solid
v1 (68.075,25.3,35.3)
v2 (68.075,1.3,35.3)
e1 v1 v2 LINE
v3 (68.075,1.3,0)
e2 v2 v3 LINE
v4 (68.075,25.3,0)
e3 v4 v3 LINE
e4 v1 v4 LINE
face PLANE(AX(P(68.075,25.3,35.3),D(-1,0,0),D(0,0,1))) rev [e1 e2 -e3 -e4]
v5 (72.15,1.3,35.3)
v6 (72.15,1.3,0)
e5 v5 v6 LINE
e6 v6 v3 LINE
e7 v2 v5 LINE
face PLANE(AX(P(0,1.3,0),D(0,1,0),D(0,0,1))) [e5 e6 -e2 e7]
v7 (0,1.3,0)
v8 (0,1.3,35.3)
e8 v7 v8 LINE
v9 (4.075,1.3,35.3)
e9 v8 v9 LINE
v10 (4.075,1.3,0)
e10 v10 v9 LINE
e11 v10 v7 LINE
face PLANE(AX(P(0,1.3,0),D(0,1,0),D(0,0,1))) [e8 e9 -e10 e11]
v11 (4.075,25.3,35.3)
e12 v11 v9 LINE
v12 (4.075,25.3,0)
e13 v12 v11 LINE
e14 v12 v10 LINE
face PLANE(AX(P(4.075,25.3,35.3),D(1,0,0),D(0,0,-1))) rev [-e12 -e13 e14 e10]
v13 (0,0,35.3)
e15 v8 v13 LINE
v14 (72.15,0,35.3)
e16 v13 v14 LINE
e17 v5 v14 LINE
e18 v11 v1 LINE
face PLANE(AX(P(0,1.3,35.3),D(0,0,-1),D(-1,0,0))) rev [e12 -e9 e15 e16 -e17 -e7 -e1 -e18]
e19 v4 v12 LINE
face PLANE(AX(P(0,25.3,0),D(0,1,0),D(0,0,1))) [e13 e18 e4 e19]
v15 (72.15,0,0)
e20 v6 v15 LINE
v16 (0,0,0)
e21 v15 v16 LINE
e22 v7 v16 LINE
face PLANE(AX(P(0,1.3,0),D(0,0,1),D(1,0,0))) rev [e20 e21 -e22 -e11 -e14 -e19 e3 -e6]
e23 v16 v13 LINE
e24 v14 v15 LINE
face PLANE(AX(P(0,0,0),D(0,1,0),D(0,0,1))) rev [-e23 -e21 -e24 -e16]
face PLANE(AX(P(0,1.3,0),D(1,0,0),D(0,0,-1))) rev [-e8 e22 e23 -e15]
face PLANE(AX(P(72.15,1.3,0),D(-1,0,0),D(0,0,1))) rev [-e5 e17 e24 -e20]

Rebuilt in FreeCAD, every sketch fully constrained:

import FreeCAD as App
import Part
import Sketcher
Q = App.Units.Quantity

doc = App.newDocument("Part")
body = doc.addObject("PartDesign::Body", "Body")

sketch1 = doc.addObject("Sketcher::SketchObject", "Sketch")
body.addObject(sketch1)
sketch1.AttachmentSupport = (doc.XZ_Plane, [""])
sketch1.MapMode = "FlatFace"
sketch1.addGeometry(Part.LineSegment(App.Vector(0, 0, 0), App.Vector(0, 35, 0)), False)
sketch1.addGeometry(Part.LineSegment(App.Vector(0, 35, 0), App.Vector(72, 35, 0)), False)
sketch1.addGeometry(Part.LineSegment(App.Vector(72, 35, 0), App.Vector(72, 0, 0)), False)
sketch1.addGeometry(Part.LineSegment(App.Vector(72, 0, 0), App.Vector(0, 0, 0)), False)
sketch1.addConstraint(Sketcher.Constraint("Coincident", 0, 2, 1, 1))
sketch1.addConstraint(Sketcher.Constraint("Coincident", 1, 2, 2, 1))
sketch1.addConstraint(Sketcher.Constraint("Coincident", 2, 2, 3, 1))
sketch1.addConstraint(Sketcher.Constraint("Coincident", 3, 2, 0, 1))
sketch1.addConstraint(Sketcher.Constraint("Vertical", 0))
sketch1.addConstraint(Sketcher.Constraint("Horizontal", 1))
sketch1.addConstraint(Sketcher.Constraint("Vertical", 2))
sketch1.addConstraint(Sketcher.Constraint("Horizontal", 3))
sketch1.addConstraint(Sketcher.Constraint("Coincident", 3, 2, -1, 1))
sketch1.addConstraint(Sketcher.Constraint("DistanceY", 0, 1, 0, 2, Q("35.3 mm")))
sketch1.addConstraint(Sketcher.Constraint("DistanceX", 1, 1, 1, 2, Q("72.15 mm")))
pad1 = doc.addObject("PartDesign::Pad", "Pad")
body.addObject(pad1)
pad1.Profile = sketch1
pad1.Length = 1.3
pad1.Reversed = True

sketch2 = doc.addObject("Sketcher::SketchObject", "Sketch001")
body.addObject(sketch2)
sketch2.AttachmentSupport = (doc.XZ_Plane, [""])
sketch2.MapMode = "FlatFace"
sketch2.AttachmentOffset = App.Placement(App.Vector(0, 0, -1.3), App.Rotation())
sketch2.addGeometry(Part.LineSegment(App.Vector(4, 0, 0), App.Vector(4, 35, 0)), False)
sketch2.addGeometry(Part.LineSegment(App.Vector(4, 35, 0), App.Vector(68, 35, 0)), False)
sketch2.addGeometry(Part.LineSegment(App.Vector(68, 35, 0), App.Vector(68, 0, 0)), False)
sketch2.addGeometry(Part.LineSegment(App.Vector(68, 0, 0), App.Vector(4, 0, 0)), False)
sketch2.addConstraint(Sketcher.Constraint("Coincident", 0, 2, 1, 1))
sketch2.addConstraint(Sketcher.Constraint("Coincident", 1, 2, 2, 1))
sketch2.addConstraint(Sketcher.Constraint("Coincident", 2, 2, 3, 1))
sketch2.addConstraint(Sketcher.Constraint("Coincident", 3, 2, 0, 1))
sketch2.addConstraint(Sketcher.Constraint("Vertical", 0))
sketch2.addConstraint(Sketcher.Constraint("Horizontal", 1))
sketch2.addConstraint(Sketcher.Constraint("Vertical", 2))
sketch2.addConstraint(Sketcher.Constraint("Horizontal", 3))
sketch2.addConstraint(Sketcher.Constraint("PointOnObject", 2, 2, -1))
sketch2.addConstraint(Sketcher.Constraint("DistanceX", 1, 1, 1, 2, Q("64 mm")))
sketch2.addConstraint(Sketcher.Constraint("DistanceY", 0, 1, 0, 2, Q("35.3 mm")))
sketch2.addConstraint(Sketcher.Constraint("DistanceX", -1, 1, 0, 2, Q("4.075 mm")))
pad2 = doc.addObject("PartDesign::Pad", "Pad001")
body.addObject(pad2)
pad2.Profile = sketch2
pad2.Length = 24
pad2.Reversed = True

doc.recompute()
